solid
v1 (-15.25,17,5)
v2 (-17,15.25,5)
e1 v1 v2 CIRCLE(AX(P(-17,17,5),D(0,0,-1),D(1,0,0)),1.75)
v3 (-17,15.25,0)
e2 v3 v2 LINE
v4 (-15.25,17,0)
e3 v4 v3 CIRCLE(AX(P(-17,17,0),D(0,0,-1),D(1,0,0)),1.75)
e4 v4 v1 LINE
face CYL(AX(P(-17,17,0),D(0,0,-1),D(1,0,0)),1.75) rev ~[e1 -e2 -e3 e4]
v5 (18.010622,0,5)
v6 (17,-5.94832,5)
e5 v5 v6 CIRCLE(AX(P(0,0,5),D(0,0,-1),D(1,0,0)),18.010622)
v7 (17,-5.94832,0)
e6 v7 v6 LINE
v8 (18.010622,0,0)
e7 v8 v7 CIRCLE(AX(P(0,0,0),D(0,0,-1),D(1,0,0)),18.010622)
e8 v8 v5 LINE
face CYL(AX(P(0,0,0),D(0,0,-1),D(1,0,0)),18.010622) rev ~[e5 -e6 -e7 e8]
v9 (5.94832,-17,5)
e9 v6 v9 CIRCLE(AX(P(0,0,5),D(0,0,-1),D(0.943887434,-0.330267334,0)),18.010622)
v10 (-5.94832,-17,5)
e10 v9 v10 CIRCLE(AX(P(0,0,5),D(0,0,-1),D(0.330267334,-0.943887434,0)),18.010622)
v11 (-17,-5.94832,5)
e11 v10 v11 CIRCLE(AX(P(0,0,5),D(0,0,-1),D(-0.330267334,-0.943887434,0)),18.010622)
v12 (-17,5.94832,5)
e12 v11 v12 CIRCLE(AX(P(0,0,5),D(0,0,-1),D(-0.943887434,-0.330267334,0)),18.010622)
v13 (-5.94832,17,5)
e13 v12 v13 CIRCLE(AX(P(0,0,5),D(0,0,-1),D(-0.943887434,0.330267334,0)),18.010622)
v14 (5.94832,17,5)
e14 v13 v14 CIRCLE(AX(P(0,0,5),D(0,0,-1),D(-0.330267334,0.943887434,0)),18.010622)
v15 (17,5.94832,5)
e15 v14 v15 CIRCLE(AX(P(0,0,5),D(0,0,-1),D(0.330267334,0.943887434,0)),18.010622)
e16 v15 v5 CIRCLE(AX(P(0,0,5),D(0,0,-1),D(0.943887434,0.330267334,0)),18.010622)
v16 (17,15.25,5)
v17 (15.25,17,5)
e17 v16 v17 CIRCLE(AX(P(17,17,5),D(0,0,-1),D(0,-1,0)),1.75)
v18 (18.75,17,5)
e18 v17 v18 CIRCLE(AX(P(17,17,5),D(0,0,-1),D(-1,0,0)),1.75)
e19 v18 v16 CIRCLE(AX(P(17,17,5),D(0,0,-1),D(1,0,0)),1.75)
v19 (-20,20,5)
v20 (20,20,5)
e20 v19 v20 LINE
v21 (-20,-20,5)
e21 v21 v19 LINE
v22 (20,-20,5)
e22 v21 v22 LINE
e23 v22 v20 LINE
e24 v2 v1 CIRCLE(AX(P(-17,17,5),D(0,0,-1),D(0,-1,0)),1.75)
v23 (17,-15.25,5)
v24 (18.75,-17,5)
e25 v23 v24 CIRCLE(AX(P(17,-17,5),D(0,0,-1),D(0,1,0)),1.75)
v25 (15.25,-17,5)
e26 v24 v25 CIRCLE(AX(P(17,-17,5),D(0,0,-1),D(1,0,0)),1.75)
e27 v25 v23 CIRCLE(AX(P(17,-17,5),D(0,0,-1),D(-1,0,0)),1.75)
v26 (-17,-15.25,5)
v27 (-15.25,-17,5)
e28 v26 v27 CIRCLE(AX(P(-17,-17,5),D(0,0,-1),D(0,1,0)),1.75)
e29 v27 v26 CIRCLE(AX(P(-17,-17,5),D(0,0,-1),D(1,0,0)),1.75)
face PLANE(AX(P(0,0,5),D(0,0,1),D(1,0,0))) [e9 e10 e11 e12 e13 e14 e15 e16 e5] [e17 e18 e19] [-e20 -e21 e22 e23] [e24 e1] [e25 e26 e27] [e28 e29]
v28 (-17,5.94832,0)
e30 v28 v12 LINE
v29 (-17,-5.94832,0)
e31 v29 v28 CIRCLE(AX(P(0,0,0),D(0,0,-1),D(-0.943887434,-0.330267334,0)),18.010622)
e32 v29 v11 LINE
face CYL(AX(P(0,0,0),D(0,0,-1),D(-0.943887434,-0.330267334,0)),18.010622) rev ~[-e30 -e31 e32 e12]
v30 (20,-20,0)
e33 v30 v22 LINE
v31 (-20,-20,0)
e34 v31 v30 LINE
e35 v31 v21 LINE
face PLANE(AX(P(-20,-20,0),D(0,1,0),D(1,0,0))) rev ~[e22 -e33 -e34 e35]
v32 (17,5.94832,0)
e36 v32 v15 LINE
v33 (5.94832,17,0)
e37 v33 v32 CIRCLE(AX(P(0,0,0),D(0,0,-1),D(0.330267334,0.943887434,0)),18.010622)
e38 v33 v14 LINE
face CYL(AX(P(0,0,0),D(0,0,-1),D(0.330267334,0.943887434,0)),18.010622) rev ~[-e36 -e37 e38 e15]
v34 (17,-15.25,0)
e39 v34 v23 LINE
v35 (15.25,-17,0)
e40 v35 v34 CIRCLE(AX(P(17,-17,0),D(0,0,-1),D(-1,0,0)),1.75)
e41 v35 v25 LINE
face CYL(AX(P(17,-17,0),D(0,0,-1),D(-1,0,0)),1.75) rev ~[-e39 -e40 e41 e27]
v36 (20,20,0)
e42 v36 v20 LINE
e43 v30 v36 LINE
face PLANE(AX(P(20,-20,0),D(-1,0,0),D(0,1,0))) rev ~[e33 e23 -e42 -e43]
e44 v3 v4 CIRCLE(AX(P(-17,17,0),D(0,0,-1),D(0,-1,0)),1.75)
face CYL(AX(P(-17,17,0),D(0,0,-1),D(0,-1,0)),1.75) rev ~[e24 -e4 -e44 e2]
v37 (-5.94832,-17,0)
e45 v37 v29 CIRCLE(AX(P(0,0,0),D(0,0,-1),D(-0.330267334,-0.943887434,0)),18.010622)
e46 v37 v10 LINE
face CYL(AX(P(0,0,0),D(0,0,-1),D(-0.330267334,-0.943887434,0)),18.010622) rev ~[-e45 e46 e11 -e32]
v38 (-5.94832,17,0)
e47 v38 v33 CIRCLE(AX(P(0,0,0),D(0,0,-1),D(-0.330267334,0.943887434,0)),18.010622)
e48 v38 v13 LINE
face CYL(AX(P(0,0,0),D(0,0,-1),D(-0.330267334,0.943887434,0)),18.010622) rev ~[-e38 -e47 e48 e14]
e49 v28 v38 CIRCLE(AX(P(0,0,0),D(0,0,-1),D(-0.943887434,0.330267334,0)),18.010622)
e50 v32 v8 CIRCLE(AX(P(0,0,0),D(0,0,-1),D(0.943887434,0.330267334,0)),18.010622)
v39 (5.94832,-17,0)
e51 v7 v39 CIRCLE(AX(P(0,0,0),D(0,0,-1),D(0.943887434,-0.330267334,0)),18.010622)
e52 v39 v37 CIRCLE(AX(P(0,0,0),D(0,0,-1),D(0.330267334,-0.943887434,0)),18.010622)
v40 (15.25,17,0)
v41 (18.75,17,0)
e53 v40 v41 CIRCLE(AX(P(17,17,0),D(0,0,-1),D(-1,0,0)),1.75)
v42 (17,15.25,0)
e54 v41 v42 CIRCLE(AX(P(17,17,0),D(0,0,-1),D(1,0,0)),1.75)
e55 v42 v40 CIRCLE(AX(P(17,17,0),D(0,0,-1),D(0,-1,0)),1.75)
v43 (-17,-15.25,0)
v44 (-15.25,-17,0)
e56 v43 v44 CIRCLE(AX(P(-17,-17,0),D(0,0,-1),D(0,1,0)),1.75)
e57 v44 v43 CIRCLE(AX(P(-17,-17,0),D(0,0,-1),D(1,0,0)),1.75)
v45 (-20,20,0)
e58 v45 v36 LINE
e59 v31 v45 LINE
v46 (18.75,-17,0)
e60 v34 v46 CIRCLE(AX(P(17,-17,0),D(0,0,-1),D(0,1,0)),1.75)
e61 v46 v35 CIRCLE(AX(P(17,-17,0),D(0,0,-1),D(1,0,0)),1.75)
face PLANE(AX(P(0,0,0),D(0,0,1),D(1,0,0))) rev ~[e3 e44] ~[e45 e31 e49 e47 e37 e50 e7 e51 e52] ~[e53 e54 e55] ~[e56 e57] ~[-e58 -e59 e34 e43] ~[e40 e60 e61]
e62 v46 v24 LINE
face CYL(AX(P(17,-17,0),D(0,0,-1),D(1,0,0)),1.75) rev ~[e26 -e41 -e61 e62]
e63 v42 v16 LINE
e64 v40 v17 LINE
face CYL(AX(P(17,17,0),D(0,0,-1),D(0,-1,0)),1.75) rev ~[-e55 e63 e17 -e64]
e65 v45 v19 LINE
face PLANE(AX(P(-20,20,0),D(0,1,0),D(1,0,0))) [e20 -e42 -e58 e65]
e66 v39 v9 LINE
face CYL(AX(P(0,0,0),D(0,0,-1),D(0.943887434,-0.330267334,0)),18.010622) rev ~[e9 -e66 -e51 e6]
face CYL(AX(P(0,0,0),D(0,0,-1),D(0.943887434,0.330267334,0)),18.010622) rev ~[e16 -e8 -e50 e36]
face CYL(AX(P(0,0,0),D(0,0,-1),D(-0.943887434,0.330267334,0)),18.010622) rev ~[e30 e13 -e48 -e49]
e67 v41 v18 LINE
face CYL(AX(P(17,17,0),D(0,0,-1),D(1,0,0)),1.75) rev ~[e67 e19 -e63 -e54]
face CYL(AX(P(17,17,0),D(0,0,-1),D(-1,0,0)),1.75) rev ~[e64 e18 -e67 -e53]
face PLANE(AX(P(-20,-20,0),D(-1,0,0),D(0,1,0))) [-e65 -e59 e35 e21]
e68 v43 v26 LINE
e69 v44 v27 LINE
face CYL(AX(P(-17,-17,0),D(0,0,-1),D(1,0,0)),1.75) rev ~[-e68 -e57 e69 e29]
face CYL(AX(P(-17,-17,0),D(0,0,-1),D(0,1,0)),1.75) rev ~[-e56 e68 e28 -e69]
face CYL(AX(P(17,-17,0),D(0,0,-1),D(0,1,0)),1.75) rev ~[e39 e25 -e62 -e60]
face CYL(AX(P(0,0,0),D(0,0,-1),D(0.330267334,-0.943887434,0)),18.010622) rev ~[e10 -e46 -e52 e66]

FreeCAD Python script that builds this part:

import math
import FreeCAD as App
import Part
import Sketcher

V = App.Vector


def add_polygon(sketch, points):
    """Adds a closed chain of lines whose ends are joined by coincident constraints."""
    first, n = sketch.GeometryCount, len(points)
    for a, b in zip(points, points[1:] + points[:1]):
        sketch.addGeometry(Part.LineSegment(App.Vector(*a, 0), App.Vector(*b, 0)), False)
    for i in range(n):
        sketch.addConstraint(Sketcher.Constraint("Coincident", first + i, 2, first + (i + 1) % n, 1))

doc = App.newDocument("Part")
body = doc.addObject("PartDesign::Body", "Body")

# Sketch on XY plane
sketch1 = body.newObject("Sketcher::SketchObject", "Sketch")
sketch1.AttachmentSupport = (doc.getObject("XY_Plane"), [""])
sketch1.MapMode = "FlatFace"
add_polygon(sketch1, [(-20, 20), (-20, -20), (20, -20), (20, 20)])  # lines 0-3
sketch1.addGeometry(Part.ArcOfCircle(Part.Circle(V(-17, 17, 0), V(0, 0, 1), 1.8), math.radians(0), math.radians(270)), False)  # 4
sketch1.addGeometry(Part.ArcOfCircle(Part.Circle(V(-17, 17, 0), V(0, 0, 1), 1.8), math.radians(-90), math.radians(0)), False)  # 5
sketch1.addGeometry(Part.ArcOfCircle(Part.Circle(V(0, 0, 0), V(0, 0, 1), 18), math.radians(71), math.radians(109)), False)  # 6
sketch1.addGeometry(Part.ArcOfCircle(Part.Circle(V(0, 0, 0), V(0, 0, 1), 18), math.radians(19), math.radians(71)), False)  # 7
sketch1.addGeometry(Part.ArcOfCircle(Part.Circle(V(0, 0, 0), V(0, 0, 1), 18), math.radians(0), math.radians(19.29)), False)  # 8
sketch1.addGeometry(Part.ArcOfCircle(Part.Circle(V(0, 0, 0), V(0, 0, 1), 18), math.radians(-19.29), math.radians(0)), False)  # 9
sketch1.addGeometry(Part.ArcOfCircle(Part.Circle(V(0, 0, 0), V(0, 0, 1), 18), math.radians(-71), math.radians(-19)), False)  # 10
sketch1.addGeometry(Part.ArcOfCircle(Part.Circle(V(0, 0, 0), V(0, 0, 1), 18), math.radians(-109), math.radians(-71)), False)  # 11
sketch1.addGeometry(Part.ArcOfCircle(Part.Circle(V(0, 0, 0), V(0, 0, 1), 18), math.radians(-161), math.radians(-109)), False)  # 12
sketch1.addGeometry(Part.ArcOfCircle(Part.Circle(V(0, 0, 0), V(0, 0, 1), 18), math.radians(161), math.radians(199)), False)  # 13
sketch1.addGeometry(Part.ArcOfCircle(Part.Circle(V(0, 0, 0), V(0, 0, 1), 18), math.radians(109), math.radians(161)), False)  # 14
sketch1.addGeometry(Part.ArcOfCircle(Part.Circle(V(17, -17, 0), V(0, 0, 1), 1.8), math.radians(0), math.radians(90)), False)  # 15
sketch1.addGeometry(Part.ArcOfCircle(Part.Circle(V(17, -17, 0), V(0, 0, 1), 1.8), math.radians(180), math.radians(360)), False)  # 16
sketch1.addGeometry(Part.ArcOfCircle(Part.Circle(V(17, -17, 0), V(0, 0, 1), 1.8), math.radians(90), math.radians(180)), False)  # 17
sketch1.addGeometry(Part.ArcOfCircle(Part.Circle(V(17, 17, 0), V(0, 0, 1), 1.8), math.radians(0), math.radians(180)), False)  # 18
sketch1.addGeometry(Part.ArcOfCircle(Part.Circle(V(17, 17, 0), V(0, 0, 1), 1.8), math.radians(-90), math.radians(0)), False)  # 19
sketch1.addGeometry(Part.ArcOfCircle(Part.Circle(V(17, 17, 0), V(0, 0, 1), 1.8), math.radians(180), math.radians(270)), False)  # 20
sketch1.addGeometry(Part.ArcOfCircle(Part.Circle(V(-17, -17, 0), V(0, 0, 1), 1.8), math.radians(90), math.radians(360)), False)  # 21
sketch1.addGeometry(Part.ArcOfCircle(Part.Circle(V(-17, -17, 0), V(0, 0, 1), 1.8), math.radians(0), math.radians(90)), False)  # 22
sketch1.addConstraint([
    Sketcher.Constraint("Tangent", 4, 1, 5, 2),
    Sketcher.Constraint("Coincident", 5, 1, 4, 2),
    Sketcher.Constraint("Tangent", 6, 1, 7, 2),
    Sketcher.Constraint("Tangent", 7, 1, 8, 2),
    Sketcher.Constraint("Tangent", 8, 1, 9, 2),
    Sketcher.Constraint("Tangent", 9, 1, 10, 2),
    Sketcher.Constraint("Tangent", 10, 1, 11, 2),
    Sketcher.Constraint("Tangent", 11, 1, 12, 2),
    Sketcher.Constraint("Tangent", 12, 1, 13, 2),
    Sketcher.Constraint("Tangent", 13, 1, 14, 2),
    Sketcher.Constraint("Tangent", 14, 1, 6, 2),
    Sketcher.Constraint("Tangent", 15, 1, 16, 2),
    Sketcher.Constraint("Tangent", 16, 1, 17, 2),
    Sketcher.Constraint("Tangent", 17, 1, 15, 2),
    Sketcher.Constraint("Tangent", 18, 1, 19, 2),
    Sketcher.Constraint("Tangent", 19, 1, 20, 2),
    Sketcher.Constraint("Tangent", 20, 1, 18, 2),
    Sketcher.Constraint("Tangent", 21, 1, 22, 2),
    Sketcher.Constraint("Coincident", 22, 1, 21, 2),
    Sketcher.Constraint("Vertical", 0),
    Sketcher.Constraint("Horizontal", 1),
    Sketcher.Constraint("Vertical", 2),
    Sketcher.Constraint("Horizontal", 3),
    Sketcher.Constraint("Coincident", 6, 3, -1, 1),
    Sketcher.Constraint("Coincident", 8, 3, -1, 1),
    Sketcher.Constraint("Coincident", 10, 3, -1, 1),
    Sketcher.Constraint("Coincident", 12, 3, -1, 1),
    Sketcher.Constraint("Equal", 5, 15),
    Sketcher.Constraint("Equal", 17, 18),
    Sketcher.Constraint("Equal", 20, 21),
    Sketcher.Constraint("Symmetric", 4, 3, 15, 3, -1, 1),
    Sketcher.Constraint("Symmetric", 18, 3, 21, 3, -1, 1),
    Sketcher.Constraint("Symmetric", 0, 2, 2, 2, -1, 1),
    Sketcher.Constraint("Symmetric", 4, 3, 18, 3, -2),
    Sketcher.Constraint("PointOnObject", 8, 1, -1),
    Sketcher.Constraint("Horizontal", 20, 3, 4, 1),
    Sketcher.Constraint("Horizontal", 4, 1, 6, 1),
    Sketcher.Constraint("Horizontal", 22, 3, 10, 1),
    Sketcher.Constraint("Horizontal", 10, 1, 11, 1),
    Sketcher.Constraint("Horizontal", 9, 1, 12, 1),
    Sketcher.Constraint("Horizontal", 7, 1, 13, 1),
    Sketcher.Constraint("Horizontal", 6, 1, 14, 1),
    Sketcher.Constraint("Horizontal", 11, 1, 15, 1),
    Sketcher.Constraint("Horizontal", 15, 1, 16, 1),
    Sketcher.Constraint("Horizontal", 14, 1, 18, 1),
    Sketcher.Constraint("Horizontal", 18, 1, 20, 1),
    Sketcher.Constraint("Horizontal", 16, 1, 22, 1),
    Sketcher.Constraint("Vertical", 22, 3, 5, 1),
    Sketcher.Constraint("Vertical", 20, 3, 7, 1),
    Sketcher.Constraint("Vertical", 7, 1, 9, 1),
    Sketcher.Constraint("Vertical", 9, 1, 17, 1),
    Sketcher.Constraint("Vertical", 17, 1, 19, 1),
    Sketcher.Constraint("Vertical", 13, 1, 21, 1),
    Sketcher.Constraint("Equal", 3, 0),
    Sketcher.Constraint("DistanceX", 1, 1, 1, 2, 40.0),
    Sketcher.Constraint("Radius", 4, 1.75),
    Sketcher.Constraint("DistanceX", 4, 3, -1, 1, 17.0),
    Sketcher.Constraint("DistanceY", -1, 1, 4, 3, 17.0),
    Sketcher.Constraint("Radius", 6, 18.010622),
])
pad1 = body.newObject("PartDesign::Pad", "Pad")
pad1.Profile = sketch1
pad1.Length = 5

doc.recompute()
